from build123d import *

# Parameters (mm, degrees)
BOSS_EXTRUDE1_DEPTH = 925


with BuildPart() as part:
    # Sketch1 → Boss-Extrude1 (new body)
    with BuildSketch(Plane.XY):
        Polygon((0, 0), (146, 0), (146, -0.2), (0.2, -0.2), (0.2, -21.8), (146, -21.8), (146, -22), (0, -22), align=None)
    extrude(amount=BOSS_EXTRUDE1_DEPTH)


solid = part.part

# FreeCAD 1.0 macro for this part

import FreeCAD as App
import Part
import Sketcher

V = App.Vector
Q = App.Units.Quantity


def add_polygon(sketch, points):
    """Adds a closed chain of lines whose ends are joined by coincident constraints."""
    first, n = sketch.GeometryCount, len(points)
    for a, b in zip(points, points[1:] + points[:1]):
        sketch.addGeometry(Part.LineSegment(App.Vector(*a, 0), App.Vector(*b, 0)), False)
    for i in range(n):
        sketch.addConstraint(Sketcher.Constraint("Coincident", first + i, 2, first + (i + 1) % n, 1))

doc = App.newDocument("Part")
params = doc.addObject("Spreadsheet::Sheet", "Params")
for row, (alias, value) in enumerate([
    ("sketch1_width", "146 mm"),
    ("sketch1_height", "22 mm"),
    ("sketch1_width2", "145.8 mm"),
    ("sketch1_height2", "0.2 mm"),
    ("pad1_length", "925 mm"),
], start=1):
    params.set(f"A{row}", alias)
    params.set(f"B{row}", "=" + value)
    params.setAlias(f"B{row}", alias)

body = doc.addObject("PartDesign::Body", "Body")

# Sketch on XY plane
sketch1 = body.newObject("Sketcher::SketchObject", "Sketch")
sketch1.AttachmentSupport = (doc.getObject("XY_Plane"), [""])
sketch1.MapMode = "FlatFace"
add_polygon(sketch1, [(146, 0), (0, 0), (0, -22), (146, -22), (146, -21.8), (0.2, -21.8), (0.2, -0.2), (146, -0.2)])  # lines 0-7
sketch1.addConstraint(Sketcher.Constraint("Horizontal", 0))
sketch1.addConstraint(Sketcher.Constraint("Vertical", 1))
sketch1.addConstraint(Sketcher.Constraint("Horizontal", 2))
sketch1.addConstraint(Sketcher.Constraint("Vertical", 3))
sketch1.addConstraint(Sketcher.Constraint("Horizontal", 4))
sketch1.addConstraint(Sketcher.Constraint("Vertical", 5))
sketch1.addConstraint(Sketcher.Constraint("Horizontal", 6))
sketch1.addConstraint(Sketcher.Constraint("Vertical", 7))
sketch1.addConstraint(Sketcher.Constraint("Coincident", 0, 2, -1, 1))
sketch1.addConstraint(Sketcher.Constraint("Vertical", 3, 2, 6, 2))
sketch1.addConstraint(Sketcher.Constraint("Equal", 3, 7))
sketch1.addConstraint(Sketcher.Constraint("DistanceX", 0, 2, 0, 1, Q("146 mm")))
sketch1.addConstraint(Sketcher.Constraint("DistanceY", 1, 2, 1, 1, Q("22 mm")))
sketch1.addConstraint(Sketcher.Constraint("DistanceX", 4, 2, 4, 1, Q("145.8 mm")))
sketch1.addConstraint(Sketcher.Constraint("DistanceY", 3, 1, 3, 2, Q("0.2 mm")))
sketch1.setExpression("Constraints[19]", "Params.sketch1_width")
sketch1.setExpression("Constraints[20]", "Params.sketch1_height")
sketch1.setExpression("Constraints[21]", "Params.sketch1_width2")
sketch1.setExpression("Constraints[22]", "Params.sketch1_height2")
pad1 = body.newObject("PartDesign::Pad", "Pad")
pad1.Profile = sketch1
pad1.setExpression("Length", "Params.pad1_length")

doc.recompute()
